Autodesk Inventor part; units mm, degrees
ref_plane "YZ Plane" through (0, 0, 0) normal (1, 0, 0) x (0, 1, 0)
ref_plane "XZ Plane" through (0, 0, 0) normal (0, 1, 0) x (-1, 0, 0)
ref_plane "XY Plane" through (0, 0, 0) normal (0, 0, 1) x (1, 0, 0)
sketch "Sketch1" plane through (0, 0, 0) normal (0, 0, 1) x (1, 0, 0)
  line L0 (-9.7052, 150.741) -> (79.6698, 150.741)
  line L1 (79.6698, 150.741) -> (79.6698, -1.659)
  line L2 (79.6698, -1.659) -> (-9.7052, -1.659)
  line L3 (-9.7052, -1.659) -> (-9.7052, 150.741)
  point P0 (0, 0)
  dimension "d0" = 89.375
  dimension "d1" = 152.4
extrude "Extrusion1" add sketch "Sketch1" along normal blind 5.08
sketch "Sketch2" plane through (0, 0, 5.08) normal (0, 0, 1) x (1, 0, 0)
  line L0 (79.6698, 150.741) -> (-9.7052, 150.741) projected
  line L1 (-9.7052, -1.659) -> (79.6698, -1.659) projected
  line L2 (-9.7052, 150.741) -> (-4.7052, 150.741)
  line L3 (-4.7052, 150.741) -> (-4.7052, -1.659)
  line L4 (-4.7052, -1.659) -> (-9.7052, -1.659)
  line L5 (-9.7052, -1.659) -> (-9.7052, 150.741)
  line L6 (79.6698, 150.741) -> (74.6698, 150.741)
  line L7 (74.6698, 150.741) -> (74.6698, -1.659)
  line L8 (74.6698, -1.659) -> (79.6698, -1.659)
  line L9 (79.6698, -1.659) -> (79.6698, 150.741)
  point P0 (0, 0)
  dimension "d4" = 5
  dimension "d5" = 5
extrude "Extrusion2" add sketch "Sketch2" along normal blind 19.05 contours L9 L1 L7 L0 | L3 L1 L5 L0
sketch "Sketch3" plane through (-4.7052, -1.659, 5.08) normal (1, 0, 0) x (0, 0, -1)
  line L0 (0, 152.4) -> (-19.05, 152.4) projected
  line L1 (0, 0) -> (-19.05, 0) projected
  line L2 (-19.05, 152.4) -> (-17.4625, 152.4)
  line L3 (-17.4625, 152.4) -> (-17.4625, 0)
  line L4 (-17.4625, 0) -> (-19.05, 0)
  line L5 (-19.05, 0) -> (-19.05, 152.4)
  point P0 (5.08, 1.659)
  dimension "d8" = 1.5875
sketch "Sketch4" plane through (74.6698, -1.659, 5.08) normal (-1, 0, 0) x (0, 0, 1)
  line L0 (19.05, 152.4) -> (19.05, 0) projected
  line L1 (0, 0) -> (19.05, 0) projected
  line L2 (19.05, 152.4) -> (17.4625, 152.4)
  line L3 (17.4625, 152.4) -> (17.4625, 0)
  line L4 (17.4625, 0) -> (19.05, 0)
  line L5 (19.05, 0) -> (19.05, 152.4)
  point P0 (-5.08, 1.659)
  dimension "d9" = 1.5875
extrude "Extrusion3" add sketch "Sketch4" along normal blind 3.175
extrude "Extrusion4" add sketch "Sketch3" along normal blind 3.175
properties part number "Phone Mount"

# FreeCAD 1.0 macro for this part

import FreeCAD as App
import Part
import Sketcher
Q = App.Units.Quantity


def add_polygon(sketch, points):
    """Adds a closed chain of lines whose ends are joined by coincident constraints."""
    first, n = sketch.GeometryCount, len(points)
    for a, b in zip(points, points[1:] + points[:1]):
        sketch.addGeometry(Part.LineSegment(App.Vector(*a, 0), App.Vector(*b, 0)), False)
    for i in range(n):
        sketch.addConstraint(Sketcher.Constraint("Coincident", first + i, 2, first + (i + 1) % n, 1))

doc = App.newDocument("Part")
params = doc.addObject("Spreadsheet::Sheet", "Params")
for row, (alias, value) in enumerate([
    ("sketch1_height", "6 in"),
    ("pad1_length", "0.2 in"),
    ("sketch2_height", "6 in"),
    ("pad2_length", "0.75 in"),
    ("sketch3_width", "6 in"),
    ("sketch3_height", "0.0625 in"),
    ("pad3_length", "0.125 in"),
    ("sketch4_width", "6 in"),
    ("sketch4_height", "0.0625 in"),
    ("pad4_length", "0.125 in"),
], start=1):
    params.set(f"A{row}", alias)
    params.set(f"B{row}", "=" + value)
    params.setAlias(f"B{row}", alias)

body = doc.addObject("PartDesign::Body", "Body")

sketch1 = doc.addObject("Sketcher::SketchObject", "Sketch")
body.addObject(sketch1)
sketch1.AttachmentSupport = (doc.XY_Plane, [""])
sketch1.MapMode = "FlatFace"
add_polygon(sketch1, [(80, 151), (-10, 151), (-10, -2), (80, -2)])
sketch1.addConstraint(Sketcher.Constraint("Horizontal", 0))
sketch1.addConstraint(Sketcher.Constraint("Vertical", 1))
sketch1.addConstraint(Sketcher.Constraint("Horizontal", 2))
sketch1.addConstraint(Sketcher.Constraint("Vertical", 3))
sketch1.addConstraint(Sketcher.Constraint("DistanceY", 1, 2, 1, 1, Q("6 in")))
sketch1.addConstraint(Sketcher.Constraint("DistanceX", 0, 2, 0, 1, Q("3.5187 in")))
sketch1.addConstraint(Sketcher.Constraint("DistanceX", 0, 2, -1, 1, Q("0.3821 in")))
sketch1.addConstraint(Sketcher.Constraint("DistanceY", -1, 1, 0, 2, Q("150.741 mm")))
sketch1.setExpression("Constraints[8]", "Params.sketch1_height")
pad1 = doc.addObject("PartDesign::Pad", "Pad")
body.addObject(pad1)
pad1.Profile = sketch1
pad1.setExpression("Length", "Params.pad1_length")

sketch2 = doc.addObject("Sketcher::SketchObject", "Sketch001")
body.addObject(sketch2)
sketch2.AttachmentSupport = (doc.XY_Plane, [""])
sketch2.MapMode = "FlatFace"
sketch2.AttachmentOffset = App.Placement(App.Vector(0, 0, 0.2 * 25.4), App.Rotation())
add_polygon(sketch2, [(80, -2), (80, 151), (75, 151), (75, -2)])
add_polygon(sketch2, [(-5, -2), (-5, 151), (-10, 151), (-10, -2)])
sketch2.addConstraint(Sketcher.Constraint("Vertical", 0))
sketch2.addConstraint(Sketcher.Constraint("Horizontal", 1))
sketch2.addConstraint(Sketcher.Constraint("Vertical", 2))
sketch2.addConstraint(Sketcher.Constraint("Horizontal", 3))
sketch2.addConstraint(Sketcher.Constraint("Vertical", 4))
sketch2.addConstraint(Sketcher.Constraint("Horizontal", 5))
sketch2.addConstraint(Sketcher.Constraint("Vertical", 6))
sketch2.addConstraint(Sketcher.Constraint("Horizontal", 7))
sketch2.addConstraint(Sketcher.Constraint("Horizontal", 1, 2, 4, 2))
sketch2.addConstraint(Sketcher.Constraint("Horizontal", 3, 2, 6, 2))
sketch2.addConstraint(Sketcher.Constraint("Equal", 3, 5))
sketch2.addConstraint(Sketcher.Constraint("DistanceY", 0, 1, 0, 2, Q("6 in")))
sketch2.addConstraint(Sketcher.Constraint("DistanceX", 1, 2, 1, 1, Q("5 mm")))
sketch2.addConstraint(Sketcher.Constraint("DistanceX", 4, 2, 1, 2, Q("3.125 in")))
sketch2.addConstraint(Sketcher.Constraint("DistanceX", -1, 1, 0, 2, Q("3.1366 in")))
sketch2.addConstraint(Sketcher.Constraint("DistanceY", -1, 1, 0, 2, Q("150.741 mm")))
sketch2.setExpression("Constraints[19]", "Params.sketch2_height")
pad2 = doc.addObject("PartDesign::Pad", "Pad001")
body.addObject(pad2)
pad2.Profile = sketch2
pad2.setExpression("Length", "Params.pad2_length")

sketch3 = doc.addObject("Sketcher::SketchObject", "Sketch002")
body.addObject(sketch3)
sketch3.AttachmentSupport = (doc.YZ_Plane, [""])
sketch3.MapMode = "FlatFace"
sketch3.AttachmentOffset = App.Placement(App.Vector(0, 0, 74.6698), App.Rotation())
add_polygon(sketch3, [(-1.7, 24.1), (150.7, 24.1), (150.7, 22.5), (-1.7, 22.5)])
sketch3.addConstraint(Sketcher.Constraint("Horizontal", 0))
sketch3.addConstraint(Sketcher.Constraint("Vertical", 1))
sketch3.addConstraint(Sketcher.Constraint("Horizontal", 2))
sketch3.addConstraint(Sketcher.Constraint("Vertical", 3))
sketch3.addConstraint(Sketcher.Constraint("DistanceX", 0, 1, 0, 2, Q("6 in")))
sketch3.addConstraint(Sketcher.Constraint("DistanceY", 1, 2, 1, 1, Q("0.0625 in")))
sketch3.addConstraint(Sketcher.Constraint("DistanceY", -1, 1, 0, 2, Q("0.95 in")))
sketch3.addConstraint(Sketcher.Constraint("DistanceX", -1, 1, 0, 2, Q("150.741 mm")))
sketch3.setExpression("Constraints[8]", "Params.sketch3_width")
sketch3.setExpression("Constraints[9]", "Params.sketch3_height")
pad3 = doc.addObject("PartDesign::Pad", "Pad002")
body.addObject(pad3)
pad3.Profile = sketch3
pad3.setExpression("Length", "Params.pad3_length")
pad3.Reversed = True

sketch4 = doc.addObject("Sketcher::SketchObject", "Sketch003")
body.addObject(sketch4)
sketch4.AttachmentSupport = (doc.YZ_Plane, [""])
sketch4.MapMode = "FlatFace"
sketch4.AttachmentOffset = App.Placement(App.Vector(0, 0, -4.7052), App.Rotation())
add_polygon(sketch4, [(-1.7, 22.5), (150.7, 22.5), (150.7, 24.1), (-1.7, 24.1)])
sketch4.addConstraint(Sketcher.Constraint("Horizontal", 0))
sketch4.addConstraint(Sketcher.Constraint("Vertical", 1))
sketch4.addConstraint(Sketcher.Constraint("Horizontal", 2))
sketch4.addConstraint(Sketcher.Constraint("Vertical", 3))
sketch4.addConstraint(Sketcher.Constraint("DistanceX", 0, 1, 0, 2, Q("6 in")))
sketch4.addConstraint(Sketcher.Constraint("DistanceY", 1, 1, 1, 2, Q("0.0625 in")))
sketch4.addConstraint(Sketcher.Constraint("DistanceY", -1, 1, 1, 2, Q("0.95 in")))
sketch4.addConstraint(Sketcher.Constraint("DistanceX", -1, 1, 0, 2, Q("150.741 mm")))
sketch4.setExpression("Constraints[8]", "Params.sketch4_width")
sketch4.setExpression("Constraints[9]", "Params.sketch4_height")
pad4 = doc.addObject("PartDesign::Pad", "Pad003")
body.addObject(pad4)
pad4.Profile = sketch4
pad4.setExpression("Length", "Params.pad4_length")

doc.recompute()
